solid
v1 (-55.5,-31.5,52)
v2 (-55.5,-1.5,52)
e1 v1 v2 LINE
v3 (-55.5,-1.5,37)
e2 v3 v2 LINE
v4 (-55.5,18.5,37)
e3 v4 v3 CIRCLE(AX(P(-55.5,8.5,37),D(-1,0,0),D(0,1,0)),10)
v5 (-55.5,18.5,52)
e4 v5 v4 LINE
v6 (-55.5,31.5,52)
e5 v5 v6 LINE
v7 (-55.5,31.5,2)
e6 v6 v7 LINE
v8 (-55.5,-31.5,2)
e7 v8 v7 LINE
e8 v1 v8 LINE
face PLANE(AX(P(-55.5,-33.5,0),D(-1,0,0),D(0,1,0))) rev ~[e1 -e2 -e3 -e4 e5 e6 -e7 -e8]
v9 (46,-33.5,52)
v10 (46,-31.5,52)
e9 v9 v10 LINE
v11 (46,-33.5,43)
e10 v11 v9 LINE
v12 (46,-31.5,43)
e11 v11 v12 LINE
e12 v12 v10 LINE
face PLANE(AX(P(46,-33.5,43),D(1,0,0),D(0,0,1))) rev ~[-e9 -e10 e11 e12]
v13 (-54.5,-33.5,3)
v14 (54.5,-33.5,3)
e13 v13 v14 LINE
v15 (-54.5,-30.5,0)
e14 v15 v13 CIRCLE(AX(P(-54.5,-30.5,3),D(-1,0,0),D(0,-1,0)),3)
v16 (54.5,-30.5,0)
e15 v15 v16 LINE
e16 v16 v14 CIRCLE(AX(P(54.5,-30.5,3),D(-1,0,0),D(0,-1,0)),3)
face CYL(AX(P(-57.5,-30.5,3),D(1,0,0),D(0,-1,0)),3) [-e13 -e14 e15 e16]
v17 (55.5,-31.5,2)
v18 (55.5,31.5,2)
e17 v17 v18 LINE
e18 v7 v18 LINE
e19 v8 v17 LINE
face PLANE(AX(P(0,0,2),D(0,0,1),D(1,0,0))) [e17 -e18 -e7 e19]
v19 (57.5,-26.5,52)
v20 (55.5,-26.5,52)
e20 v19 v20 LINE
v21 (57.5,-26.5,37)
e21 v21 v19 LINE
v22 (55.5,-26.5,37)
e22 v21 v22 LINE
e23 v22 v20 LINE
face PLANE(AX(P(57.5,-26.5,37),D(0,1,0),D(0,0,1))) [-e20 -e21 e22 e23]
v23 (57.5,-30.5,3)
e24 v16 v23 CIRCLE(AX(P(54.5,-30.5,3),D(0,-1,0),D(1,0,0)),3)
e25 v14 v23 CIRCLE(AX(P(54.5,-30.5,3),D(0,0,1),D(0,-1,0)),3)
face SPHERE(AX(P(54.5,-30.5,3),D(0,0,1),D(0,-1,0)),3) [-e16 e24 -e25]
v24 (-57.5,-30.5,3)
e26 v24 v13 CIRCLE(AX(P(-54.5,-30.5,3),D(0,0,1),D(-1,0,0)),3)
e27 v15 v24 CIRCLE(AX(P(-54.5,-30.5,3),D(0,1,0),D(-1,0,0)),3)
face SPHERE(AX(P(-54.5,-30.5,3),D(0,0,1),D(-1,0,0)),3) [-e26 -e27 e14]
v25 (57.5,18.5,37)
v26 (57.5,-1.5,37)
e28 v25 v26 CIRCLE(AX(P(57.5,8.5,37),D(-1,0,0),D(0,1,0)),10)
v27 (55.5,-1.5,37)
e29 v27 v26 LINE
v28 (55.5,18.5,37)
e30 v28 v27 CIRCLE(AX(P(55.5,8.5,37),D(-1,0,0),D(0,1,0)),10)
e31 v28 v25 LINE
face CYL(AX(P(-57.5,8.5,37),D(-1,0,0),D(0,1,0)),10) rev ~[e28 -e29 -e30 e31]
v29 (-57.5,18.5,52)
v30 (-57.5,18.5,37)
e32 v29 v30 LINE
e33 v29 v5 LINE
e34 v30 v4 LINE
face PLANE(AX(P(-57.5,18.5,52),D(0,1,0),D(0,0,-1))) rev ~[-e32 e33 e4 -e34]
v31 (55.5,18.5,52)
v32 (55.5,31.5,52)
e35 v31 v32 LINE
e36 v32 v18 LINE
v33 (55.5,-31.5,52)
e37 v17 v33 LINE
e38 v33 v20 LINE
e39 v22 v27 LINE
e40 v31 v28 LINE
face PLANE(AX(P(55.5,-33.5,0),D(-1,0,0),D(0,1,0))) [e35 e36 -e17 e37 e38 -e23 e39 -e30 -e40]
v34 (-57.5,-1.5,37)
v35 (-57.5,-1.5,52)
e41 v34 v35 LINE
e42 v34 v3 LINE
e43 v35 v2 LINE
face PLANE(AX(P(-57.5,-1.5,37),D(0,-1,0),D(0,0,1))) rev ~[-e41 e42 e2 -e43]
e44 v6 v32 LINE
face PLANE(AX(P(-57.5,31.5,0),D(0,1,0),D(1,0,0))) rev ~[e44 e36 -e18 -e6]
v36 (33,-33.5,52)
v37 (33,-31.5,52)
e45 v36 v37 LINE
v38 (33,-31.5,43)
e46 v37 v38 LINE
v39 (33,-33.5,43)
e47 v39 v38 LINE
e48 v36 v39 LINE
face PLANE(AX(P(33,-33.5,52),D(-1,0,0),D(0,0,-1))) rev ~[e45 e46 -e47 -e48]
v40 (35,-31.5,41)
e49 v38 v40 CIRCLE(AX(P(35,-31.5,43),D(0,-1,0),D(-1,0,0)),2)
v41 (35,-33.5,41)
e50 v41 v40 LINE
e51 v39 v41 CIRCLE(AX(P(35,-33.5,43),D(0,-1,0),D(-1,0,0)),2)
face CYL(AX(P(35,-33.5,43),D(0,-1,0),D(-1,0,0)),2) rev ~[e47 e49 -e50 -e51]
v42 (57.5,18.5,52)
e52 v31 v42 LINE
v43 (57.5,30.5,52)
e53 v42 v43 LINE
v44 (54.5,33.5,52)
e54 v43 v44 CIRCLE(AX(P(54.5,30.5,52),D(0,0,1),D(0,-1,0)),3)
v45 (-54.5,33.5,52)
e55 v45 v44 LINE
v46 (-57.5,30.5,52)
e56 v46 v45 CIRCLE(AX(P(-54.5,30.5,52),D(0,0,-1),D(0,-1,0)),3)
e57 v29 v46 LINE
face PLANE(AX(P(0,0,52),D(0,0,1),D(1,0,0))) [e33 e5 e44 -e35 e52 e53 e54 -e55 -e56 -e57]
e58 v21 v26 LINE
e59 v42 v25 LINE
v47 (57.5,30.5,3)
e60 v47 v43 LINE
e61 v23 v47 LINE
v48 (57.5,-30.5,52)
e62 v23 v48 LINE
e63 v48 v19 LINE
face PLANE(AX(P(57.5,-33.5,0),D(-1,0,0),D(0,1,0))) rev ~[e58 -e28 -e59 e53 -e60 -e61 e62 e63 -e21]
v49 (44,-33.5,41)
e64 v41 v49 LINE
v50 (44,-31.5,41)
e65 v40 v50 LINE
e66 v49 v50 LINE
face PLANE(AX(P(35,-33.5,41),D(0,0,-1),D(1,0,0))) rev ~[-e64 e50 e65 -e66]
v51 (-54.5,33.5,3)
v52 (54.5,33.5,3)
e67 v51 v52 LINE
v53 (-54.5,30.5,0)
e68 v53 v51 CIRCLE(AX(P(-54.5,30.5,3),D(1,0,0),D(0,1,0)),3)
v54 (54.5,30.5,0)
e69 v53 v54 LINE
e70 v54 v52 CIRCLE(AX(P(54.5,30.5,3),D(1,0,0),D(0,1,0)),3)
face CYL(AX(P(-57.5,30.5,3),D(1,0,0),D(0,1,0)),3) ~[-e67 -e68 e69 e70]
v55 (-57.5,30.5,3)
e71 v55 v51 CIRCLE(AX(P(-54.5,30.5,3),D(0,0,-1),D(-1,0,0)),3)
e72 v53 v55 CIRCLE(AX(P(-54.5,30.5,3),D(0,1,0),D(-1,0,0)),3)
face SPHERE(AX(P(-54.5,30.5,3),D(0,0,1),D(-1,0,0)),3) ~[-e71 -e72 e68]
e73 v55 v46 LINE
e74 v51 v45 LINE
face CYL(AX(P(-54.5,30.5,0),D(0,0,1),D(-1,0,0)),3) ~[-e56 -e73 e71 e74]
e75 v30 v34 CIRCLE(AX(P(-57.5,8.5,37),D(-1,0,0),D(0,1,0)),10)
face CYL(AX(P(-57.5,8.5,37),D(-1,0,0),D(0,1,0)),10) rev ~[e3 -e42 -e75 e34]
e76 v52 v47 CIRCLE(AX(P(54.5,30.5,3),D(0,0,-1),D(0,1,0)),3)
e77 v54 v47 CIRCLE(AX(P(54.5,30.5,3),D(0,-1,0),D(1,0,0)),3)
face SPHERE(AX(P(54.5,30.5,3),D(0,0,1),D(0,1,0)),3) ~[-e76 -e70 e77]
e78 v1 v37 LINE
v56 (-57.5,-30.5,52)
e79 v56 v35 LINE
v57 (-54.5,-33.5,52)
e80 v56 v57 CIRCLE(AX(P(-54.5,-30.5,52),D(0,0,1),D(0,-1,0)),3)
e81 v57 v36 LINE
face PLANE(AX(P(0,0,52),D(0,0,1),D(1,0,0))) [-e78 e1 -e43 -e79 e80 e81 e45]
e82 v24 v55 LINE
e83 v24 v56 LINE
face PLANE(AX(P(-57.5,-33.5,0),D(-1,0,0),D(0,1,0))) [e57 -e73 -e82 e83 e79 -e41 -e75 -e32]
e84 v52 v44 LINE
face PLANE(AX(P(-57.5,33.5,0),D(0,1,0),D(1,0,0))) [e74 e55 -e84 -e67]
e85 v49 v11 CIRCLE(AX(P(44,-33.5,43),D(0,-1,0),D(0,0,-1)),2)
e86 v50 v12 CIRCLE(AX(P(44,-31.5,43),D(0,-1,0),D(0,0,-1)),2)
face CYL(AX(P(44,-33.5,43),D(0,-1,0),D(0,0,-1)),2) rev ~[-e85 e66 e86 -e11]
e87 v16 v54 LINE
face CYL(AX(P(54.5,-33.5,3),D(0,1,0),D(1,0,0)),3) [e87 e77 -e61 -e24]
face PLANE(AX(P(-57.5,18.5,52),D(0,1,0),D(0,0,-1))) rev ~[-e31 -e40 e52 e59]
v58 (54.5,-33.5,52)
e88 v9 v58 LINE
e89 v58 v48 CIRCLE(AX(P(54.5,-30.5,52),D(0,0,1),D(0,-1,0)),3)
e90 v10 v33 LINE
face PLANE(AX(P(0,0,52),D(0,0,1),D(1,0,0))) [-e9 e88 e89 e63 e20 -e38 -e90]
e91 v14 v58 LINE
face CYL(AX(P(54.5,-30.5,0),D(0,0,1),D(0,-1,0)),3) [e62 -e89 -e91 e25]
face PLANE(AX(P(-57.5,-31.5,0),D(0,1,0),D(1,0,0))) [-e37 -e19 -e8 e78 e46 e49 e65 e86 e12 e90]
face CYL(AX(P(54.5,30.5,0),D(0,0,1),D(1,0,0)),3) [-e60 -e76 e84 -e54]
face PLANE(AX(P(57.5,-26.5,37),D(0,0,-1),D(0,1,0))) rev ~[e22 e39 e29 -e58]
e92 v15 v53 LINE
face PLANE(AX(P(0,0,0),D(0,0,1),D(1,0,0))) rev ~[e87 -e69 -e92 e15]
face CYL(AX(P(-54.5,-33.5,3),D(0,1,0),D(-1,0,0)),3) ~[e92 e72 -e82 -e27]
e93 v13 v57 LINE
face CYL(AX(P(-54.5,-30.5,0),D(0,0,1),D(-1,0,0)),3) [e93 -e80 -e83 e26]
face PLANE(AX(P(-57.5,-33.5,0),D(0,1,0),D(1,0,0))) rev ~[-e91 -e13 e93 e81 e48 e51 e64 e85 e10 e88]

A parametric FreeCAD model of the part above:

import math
import FreeCAD as App
import Part
import Sketcher
from FreeCAD import Vector
Q = App.Units.Quantity


def edges_at(feature, points):
    """Names of the edges that pass closest to the given points."""
    edges = feature.Shape.Edges
    near = lambda p: min(range(len(edges)), key=lambda i: edges[i].distToShape(Part.Vertex(*p))[0])
    return sorted({f"Edge{near(p) + 1}" for p in points})


def faces_at(feature, points):
    """Names of the faces that lie closest to the given points."""
    faces = feature.Shape.Faces
    near = lambda p: min(range(len(faces)), key=lambda i: faces[i].distToShape(Part.Vertex(*p))[0])
    return sorted({f"Face{near(p) + 1}" for p in points})


def add_polygon(sketch, points):
    """Adds a closed chain of lines whose ends are joined by coincident constraints."""
    first, n = sketch.GeometryCount, len(points)
    for a, b in zip(points, points[1:] + points[:1]):
        sketch.addGeometry(Part.LineSegment(App.Vector(*a, 0), App.Vector(*b, 0)), False)
    for i in range(n):
        sketch.addConstraint(Sketcher.Constraint("Coincident", first + i, 2, first + (i + 1) % n, 1))

doc = App.newDocument("Part")
body = doc.addObject("PartDesign::Body", "Body")

# Sketch on XY plane
sketch1 = body.newObject("Sketcher::SketchObject", "Sketch")
sketch1.AttachmentSupport = (doc.getObject("XY_Plane"), [""])
sketch1.MapMode = "FlatFace"
add_polygon(sketch1, [(-58, 34), (-58, -34), (58, -34), (58, 34)])  # lines 0-3
sketch1.addConstraint(Sketcher.Constraint("Vertical", 0))
sketch1.addConstraint(Sketcher.Constraint("Horizontal", 1))
sketch1.addConstraint(Sketcher.Constraint("Vertical", 2))
sketch1.addConstraint(Sketcher.Constraint("Horizontal", 3))
sketch1.addConstraint(Sketcher.Constraint("Symmetric", 0, 2, 2, 2, -1, 1))
sketch1.addConstraint(Sketcher.Constraint("DistanceX", 1, 1, 1, 2, Q("115 mm")))
sketch1.addConstraint(Sketcher.Constraint("DistanceY", 0, 2, 0, 1, Q("67 mm")))
pad1 = body.newObject("PartDesign::Pad", "Pad")
pad1.Profile = sketch1
pad1.Length = 52
doc.recompute()

thickness = body.newObject("PartDesign::Thickness", "Thickness")
thickness.Base = (pad1, faces_at(pad1, [(0, 0, 52)]))
thickness.Value = 2
thickness.Reversed = True
thickness.Join = "Arc"
doc.recompute()

fillet = body.newObject("PartDesign::Fillet", "Fillet")
fillet.Base = (thickness, edges_at(thickness, [
    (57.5, 33.5, 26),
    (57.5, -33.5, 26),
    (-57.5, -33.5, 26),
    (-57.5, 33.5, 26),
    (-57.5, 0, 0),
    (0, -33.5, 0),
    (0, 33.5, 0),
    (57.5, 0, 0),
]))
fillet.Radius = 3

# Sketch on YZ plane
sketch2 = body.newObject("Sketcher::SketchObject", "Sketch001")
sketch2.AttachmentSupport = (doc.getObject("YZ_Plane"), [""])
sketch2.MapMode = "FlatFace"
sketch2.AttachmentOffset = App.Placement(Vector(0, 0, -57.5), App.Rotation())
sketch2.addGeometry(Part.LineSegment(Vector(18, 52, 0), Vector(18, 37, 0)), False)
sketch2.addGeometry(Part.ArcOfCircle(Part.Circle(Vector(8, 37, 0), Vector(0, 0, 1), 10), math.radians(180), math.radians(360)), False)
sketch2.addGeometry(Part.LineSegment(Vector(-2, 37, 0), Vector(-2, 52, 0)), False)
sketch2.addGeometry(Part.LineSegment(Vector(-2, 52, 0), Vector(18, 52, 0)), False)
sketch2.addConstraint(Sketcher.Constraint("Tangent", 0, 2, 1, 2))
sketch2.addConstraint(Sketcher.Constraint("Tangent", 1, 1, 2, 1))
sketch2.addConstraint(Sketcher.Constraint("Coincident", 2, 2, 3, 1))
sketch2.addConstraint(Sketcher.Constraint("Coincident", 3, 2, 0, 1))
sketch2.addConstraint(Sketcher.Constraint("Vertical", 0))
sketch2.addConstraint(Sketcher.Constraint("Vertical", 2))
sketch2.addConstraint(Sketcher.Constraint("Horizontal", 3))
sketch2.addConstraint(Sketcher.Constraint("Radius", 1, Q("10 mm")))
sketch2.addConstraint(Sketcher.Constraint("DistanceY", 0, 2, 0, 1, Q("15 mm")))
sketch2.addConstraint(Sketcher.Constraint("DistanceY", -1, 1, 1, 3, Q("37 mm")))
sketch2.addConstraint(Sketcher.Constraint("DistanceX", -1, 1, 1, 3, Q("8.5 mm")))
pocket1 = body.newObject("PartDesign::Pocket", "Pocket")
pocket1.Profile = sketch2
pocket1.Type = "ThroughAll"
pocket1.Reversed = True

# Sketch on YZ plane
sketch3 = body.newObject("Sketcher::SketchObject", "Sketch002")
sketch3.AttachmentSupport = (doc.getObject("YZ_Plane"), [""])
sketch3.MapMode = "FlatFace"
sketch3.AttachmentOffset = App.Placement(Vector(0, 0, 57.5), App.Rotation())
add_polygon(sketch3, [(-26, 52), (-26, 37), (-2, 37), (-2, 52)])  # lines 0-3
sketch3.addConstraint(Sketcher.Constraint("Vertical", 0))
sketch3.addConstraint(Sketcher.Constraint("Horizontal", 1))
sketch3.addConstraint(Sketcher.Constraint("Vertical", 2))
sketch3.addConstraint(Sketcher.Constraint("Horizontal", 3))
sketch3.addConstraint(Sketcher.Constraint("DistanceX", 1, 1, 1, 2, Q("25 mm")))
sketch3.addConstraint(Sketcher.Constraint("DistanceY", 0, 2, 0, 1, Q("15 mm")))
sketch3.addConstraint(Sketcher.Constraint("DistanceY", -1, 1, 0, 2, Q("37 mm")))
sketch3.addConstraint(Sketcher.Constraint("DistanceX", 0, 2, -1, 1, Q("26.5 mm")))
pocket2 = body.newObject("PartDesign::Pocket", "Pocket001")
pocket2.Profile = sketch3
pocket2.Length = 2

# Sketch on XZ plane
sketch4 = body.newObject("Sketcher::SketchObject", "Sketch003")
sketch4.AttachmentSupport = (doc.getObject("XZ_Plane"), [""])
sketch4.MapMode = "FlatFace"
sketch4.AttachmentOffset = App.Placement(Vector(0, 0, 33.5), App.Rotation())
sketch4.addGeometry(Part.LineSegment(Vector(46, 52, 0), Vector(33, 52, 0)), False)
sketch4.addGeometry(Part.LineSegment(Vector(33, 52, 0), Vector(33, 43, 0)), False)
sketch4.addGeometry(Part.ArcOfCircle(Part.Circle(Vector(35, 43, 0), Vector(0, 0, 1), 2), math.radians(180), math.radians(270)), False)
sketch4.addGeometry(Part.LineSegment(Vector(35, 41, 0), Vector(44, 41, 0)), False)
sketch4.addGeometry(Part.ArcOfCircle(Part.Circle(Vector(44, 43, 0), Vector(0, 0, 1), 2), math.radians(-90), math.radians(0)), False)
sketch4.addGeometry(Part.LineSegment(Vector(46, 43, 0), Vector(46, 52, 0)), False)
sketch4.addConstraint(Sketcher.Constraint("Coincident", 0, 2, 1, 1))
sketch4.addConstraint(Sketcher.Constraint("Tangent", 1, 2, 2, 1))
sketch4.addConstraint(Sketcher.Constraint("Tangent", 2, 2, 3, 1))
sketch4.addConstraint(Sketcher.Constraint("Tangent", 3, 2, 4, 1))
sketch4.addConstraint(Sketcher.Constraint("Tangent", 4, 2, 5, 1))
sketch4.addConstraint(Sketcher.Constraint("Coincident", 5, 2, 0, 1))
sketch4.addConstraint(Sketcher.Constraint("Horizontal", 0))
sketch4.addConstraint(Sketcher.Constraint("Vertical", 1))
sketch4.addConstraint(Sketcher.Constraint("Horizontal", 3))
sketch4.addConstraint(Sketcher.Constraint("Vertical", 5))
sketch4.addConstraint(Sketcher.Constraint("Equal", 2, 4))
sketch4.addConstraint(Sketcher.Constraint("Equal", 3, 1))
sketch4.addConstraint(Sketcher.Constraint("Radius", 2, Q("2 mm")))
sketch4.addConstraint(Sketcher.Constraint("DistanceX", 0, 2, 0, 1, Q("13 mm")))
sketch4.addConstraint(Sketcher.Constraint("DistanceX", -1, 1, 2, 3, Q("35 mm")))
sketch4.addConstraint(Sketcher.Constraint("DistanceY", -1, 1, 2, 3, Q("43 mm")))
pocket3 = body.newObject("PartDesign::Pocket", "Pocket002")
pocket3.Profile = sketch4
pocket3.Length = 2

doc.recompute()
